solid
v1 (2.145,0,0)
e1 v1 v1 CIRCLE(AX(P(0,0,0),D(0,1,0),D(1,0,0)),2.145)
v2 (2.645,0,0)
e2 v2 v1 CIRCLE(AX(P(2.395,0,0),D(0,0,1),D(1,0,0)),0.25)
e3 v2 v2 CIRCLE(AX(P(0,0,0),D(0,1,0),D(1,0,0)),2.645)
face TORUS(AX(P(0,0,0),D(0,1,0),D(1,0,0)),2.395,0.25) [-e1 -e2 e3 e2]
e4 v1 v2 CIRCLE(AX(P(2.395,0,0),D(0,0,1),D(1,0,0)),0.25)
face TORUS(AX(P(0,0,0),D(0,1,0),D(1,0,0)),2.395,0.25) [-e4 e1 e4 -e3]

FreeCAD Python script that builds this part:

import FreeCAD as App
import Part
import Sketcher
Q = App.Units.Quantity

doc = App.newDocument("Part")
body = doc.addObject("PartDesign::Body", "Body")

sketch1 = body.newObject("Sketcher::SketchObject", "Sketch")
sketch1.AttachmentSupport = (doc.getObject("XY_Plane"), [""])
sketch1.MapMode = "FlatFace"
sketch1.addGeometry(Part.Circle(App.Vector(2.395, 0, 0), App.Vector(0, 0, 1), 0.25), False)
sketch1.addConstraint([
    Sketcher.Constraint("PointOnObject", 0, 3, -1),
    Sketcher.Constraint("Diameter", 0, Q("0.5 mm")),
    Sketcher.Constraint("DistanceX", -1, 1, 0, 3, Q("2.395 mm")),
])
revolution = body.newObject("PartDesign::Revolution", "Revolution")
revolution.Profile = sketch1
revolution.ReferenceAxis = (sketch1, ["V_Axis"])
revolution.Angle = 360

doc.recompute()
